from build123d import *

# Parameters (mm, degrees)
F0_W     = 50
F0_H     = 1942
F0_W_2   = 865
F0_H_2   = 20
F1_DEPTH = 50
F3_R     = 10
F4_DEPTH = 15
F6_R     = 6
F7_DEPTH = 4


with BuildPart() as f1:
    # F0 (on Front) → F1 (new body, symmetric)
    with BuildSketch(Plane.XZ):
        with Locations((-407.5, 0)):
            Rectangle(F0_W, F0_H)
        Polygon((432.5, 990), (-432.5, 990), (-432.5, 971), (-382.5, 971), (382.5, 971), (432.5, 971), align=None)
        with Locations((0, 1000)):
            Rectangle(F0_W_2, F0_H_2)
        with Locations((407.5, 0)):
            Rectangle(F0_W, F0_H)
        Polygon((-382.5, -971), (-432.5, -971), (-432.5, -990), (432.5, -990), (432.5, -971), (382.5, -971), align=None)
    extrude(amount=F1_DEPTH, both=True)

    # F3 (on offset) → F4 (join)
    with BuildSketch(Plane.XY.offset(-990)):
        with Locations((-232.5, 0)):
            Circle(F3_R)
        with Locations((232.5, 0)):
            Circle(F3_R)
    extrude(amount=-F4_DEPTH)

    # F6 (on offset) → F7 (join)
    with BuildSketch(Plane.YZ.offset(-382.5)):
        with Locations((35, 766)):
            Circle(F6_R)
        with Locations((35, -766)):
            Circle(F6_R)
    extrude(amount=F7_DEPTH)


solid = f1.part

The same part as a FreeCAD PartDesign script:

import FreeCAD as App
import Part
import Sketcher
from FreeCAD import Vector
Q = App.Units.Quantity

doc = App.newDocument("Part")
params = doc.addObject("Spreadsheet::Sheet", "Params")
for row, (alias, value) in enumerate([
    ("sketch1_width", "865 mm"),
    ("sketch1_width2", "765 mm"),
    ("sketch1_height", "2000 mm"),
    ("sketch1_height2", "1942 mm"),
    ("pad1_length", "100 mm"),
    ("sketch2_diameter", "20 mm"),
    ("pad2_length", "15 mm"),
    ("sketch3_diameter", "12 mm"),
    ("pad3_length", "4 mm"),
], start=1):
    params.set(f"A{row}", alias)
    params.set(f"B{row}", "=" + value)
    params.setAlias(f"B{row}", alias)

body = doc.addObject("PartDesign::Body", "Body")

sketch1 = body.newObject("Sketcher::SketchObject", "Sketch")
sketch1.AttachmentSupport = (doc.getObject("XZ_Plane"), [""])
sketch1.MapMode = "FlatFace"
sketch1.addGeometry(Part.LineSegment(Vector(432, 1010, 0), Vector(-432, 1010, 0)), False)
sketch1.addGeometry(Part.LineSegment(Vector(-432, 1010, 0), Vector(-432, -990, 0)), False)
sketch1.addGeometry(Part.LineSegment(Vector(-432, -990, 0), Vector(432, -990, 0)), False)
sketch1.addGeometry(Part.LineSegment(Vector(432, -990, 0), Vector(432, 1010, 0)), False)
sketch1.addGeometry(Part.LineSegment(Vector(-382, -971, 0), Vector(-382, 971, 0)), False)
sketch1.addGeometry(Part.LineSegment(Vector(-382, 971, 0), Vector(382, 971, 0)), False)
sketch1.addGeometry(Part.LineSegment(Vector(382, 971, 0), Vector(382, -971, 0)), False)
sketch1.addGeometry(Part.LineSegment(Vector(382, -971, 0), Vector(-382, -971, 0)), False)
sketch1.addConstraint(Sketcher.Constraint("Coincident", 0, 2, 1, 1))
sketch1.addConstraint(Sketcher.Constraint("Coincident", 1, 2, 2, 1))
sketch1.addConstraint(Sketcher.Constraint("Coincident", 2, 2, 3, 1))
sketch1.addConstraint(Sketcher.Constraint("Coincident", 3, 2, 0, 1))
sketch1.addConstraint(Sketcher.Constraint("Coincident", 4, 2, 5, 1))
sketch1.addConstraint(Sketcher.Constraint("Coincident", 5, 2, 6, 1))
sketch1.addConstraint(Sketcher.Constraint("Coincident", 6, 2, 7, 1))
sketch1.addConstraint(Sketcher.Constraint("Coincident", 7, 2, 4, 1))
sketch1.addConstraint(Sketcher.Constraint("Horizontal", 0))
sketch1.addConstraint(Sketcher.Constraint("Vertical", 1))
sketch1.addConstraint(Sketcher.Constraint("Horizontal", 2))
sketch1.addConstraint(Sketcher.Constraint("Vertical", 3))
sketch1.addConstraint(Sketcher.Constraint("Vertical", 4))
sketch1.addConstraint(Sketcher.Constraint("Horizontal", 5))
sketch1.addConstraint(Sketcher.Constraint("Vertical", 6))
sketch1.addConstraint(Sketcher.Constraint("Horizontal", 7))
sketch1.addConstraint(Sketcher.Constraint("Symmetric", 4, 2, 6, 2, -1, 1))
sketch1.addConstraint(Sketcher.Constraint("DistanceX", 0, 2, 0, 1, Q("865 mm")))
sketch1.addConstraint(Sketcher.Constraint("DistanceX", 5, 1, 5, 2, Q("765 mm")))
sketch1.addConstraint(Sketcher.Constraint("DistanceY", 1, 2, 1, 1, Q("2000 mm")))
sketch1.addConstraint(Sketcher.Constraint("DistanceY", 4, 1, 4, 2, Q("1942 mm")))
sketch1.addConstraint(Sketcher.Constraint("DistanceY", -1, 1, 0, 2, Q("1010 mm")))
sketch1.addConstraint(Sketcher.Constraint("DistanceX", 0, 2, 4, 2, Q("50 mm")))
sketch1.setExpression("Constraints[17]", "Params.sketch1_width")
sketch1.setExpression("Constraints[18]", "Params.sketch1_width2")
sketch1.setExpression("Constraints[19]", "Params.sketch1_height")
sketch1.setExpression("Constraints[20]", "Params.sketch1_height2")
pad1 = body.newObject("PartDesign::Pad", "Pad")
pad1.Profile = sketch1
pad1.setExpression("Length", "Params.pad1_length")
pad1.Midplane = True

sketch2 = body.newObject("Sketcher::SketchObject", "Sketch001")
sketch2.AttachmentSupport = (doc.getObject("XY_Plane"), [""])
sketch2.MapMode = "FlatFace"
sketch2.AttachmentOffset = App.Placement(Vector(0, 0, -990), App.Rotation())
sketch2.addGeometry(Part.Circle(Vector(-232, 0, 0), Vector(0, 0, 1), 10), False)
sketch2.addGeometry(Part.Circle(Vector(232, 0, 0), Vector(0, 0, 1), 10), False)
sketch2.addConstraint(Sketcher.Constraint("Equal", 0, 1))
sketch2.addConstraint(Sketcher.Constraint("Symmetric", 0, 3, 1, 3, -1, 1))
sketch2.addConstraint(Sketcher.Constraint("PointOnObject", 0, 3, -1))
sketch2.addConstraint(Sketcher.Constraint("Diameter", 0, Q("20 mm")))
sketch2.addConstraint(Sketcher.Constraint("DistanceX", 0, 3, 1, 3, Q("465 mm")))
sketch2.setExpression("Constraints[3]", "Params.sketch2_diameter")
pad2 = body.newObject("PartDesign::Pad", "Pad001")
pad2.Profile = sketch2
pad2.setExpression("Length", "Params.pad2_length")
pad2.Reversed = True

sketch3 = body.newObject("Sketcher::SketchObject", "Sketch002")
sketch3.AttachmentSupport = (doc.getObject("YZ_Plane"), [""])
sketch3.MapMode = "FlatFace"
sketch3.AttachmentOffset = App.Placement(Vector(0, 0, -382.5), App.Rotation())
sketch3.addGeometry(Part.Circle(Vector(35, 766, 0), Vector(0, 0, 1), 6), False)
sketch3.addGeometry(Part.Circle(Vector(35, -766, 0), Vector(0, 0, 1), 6), False)
sketch3.addConstraint(Sketcher.Constraint("Equal", 0, 1))
sketch3.addConstraint(Sketcher.Constraint("Symmetric", 0, 3, 1, 3, -1))
sketch3.addConstraint(Sketcher.Constraint("Diameter", 0, Q("12 mm")))
sketch3.addConstraint(Sketcher.Constraint("DistanceX", -1, 1, 0, 3, Q("35 mm")))
sketch3.addConstraint(Sketcher.Constraint("DistanceY", -1, 1, 0, 3, Q("766 mm")))
sketch3.setExpression("Constraints[2]", "Params.sketch3_diameter")
pad3 = body.newObject("PartDesign::Pad", "Pad002")
pad3.Profile = sketch3
pad3.setExpression("Length", "Params.pad3_length")

doc.recompute()
